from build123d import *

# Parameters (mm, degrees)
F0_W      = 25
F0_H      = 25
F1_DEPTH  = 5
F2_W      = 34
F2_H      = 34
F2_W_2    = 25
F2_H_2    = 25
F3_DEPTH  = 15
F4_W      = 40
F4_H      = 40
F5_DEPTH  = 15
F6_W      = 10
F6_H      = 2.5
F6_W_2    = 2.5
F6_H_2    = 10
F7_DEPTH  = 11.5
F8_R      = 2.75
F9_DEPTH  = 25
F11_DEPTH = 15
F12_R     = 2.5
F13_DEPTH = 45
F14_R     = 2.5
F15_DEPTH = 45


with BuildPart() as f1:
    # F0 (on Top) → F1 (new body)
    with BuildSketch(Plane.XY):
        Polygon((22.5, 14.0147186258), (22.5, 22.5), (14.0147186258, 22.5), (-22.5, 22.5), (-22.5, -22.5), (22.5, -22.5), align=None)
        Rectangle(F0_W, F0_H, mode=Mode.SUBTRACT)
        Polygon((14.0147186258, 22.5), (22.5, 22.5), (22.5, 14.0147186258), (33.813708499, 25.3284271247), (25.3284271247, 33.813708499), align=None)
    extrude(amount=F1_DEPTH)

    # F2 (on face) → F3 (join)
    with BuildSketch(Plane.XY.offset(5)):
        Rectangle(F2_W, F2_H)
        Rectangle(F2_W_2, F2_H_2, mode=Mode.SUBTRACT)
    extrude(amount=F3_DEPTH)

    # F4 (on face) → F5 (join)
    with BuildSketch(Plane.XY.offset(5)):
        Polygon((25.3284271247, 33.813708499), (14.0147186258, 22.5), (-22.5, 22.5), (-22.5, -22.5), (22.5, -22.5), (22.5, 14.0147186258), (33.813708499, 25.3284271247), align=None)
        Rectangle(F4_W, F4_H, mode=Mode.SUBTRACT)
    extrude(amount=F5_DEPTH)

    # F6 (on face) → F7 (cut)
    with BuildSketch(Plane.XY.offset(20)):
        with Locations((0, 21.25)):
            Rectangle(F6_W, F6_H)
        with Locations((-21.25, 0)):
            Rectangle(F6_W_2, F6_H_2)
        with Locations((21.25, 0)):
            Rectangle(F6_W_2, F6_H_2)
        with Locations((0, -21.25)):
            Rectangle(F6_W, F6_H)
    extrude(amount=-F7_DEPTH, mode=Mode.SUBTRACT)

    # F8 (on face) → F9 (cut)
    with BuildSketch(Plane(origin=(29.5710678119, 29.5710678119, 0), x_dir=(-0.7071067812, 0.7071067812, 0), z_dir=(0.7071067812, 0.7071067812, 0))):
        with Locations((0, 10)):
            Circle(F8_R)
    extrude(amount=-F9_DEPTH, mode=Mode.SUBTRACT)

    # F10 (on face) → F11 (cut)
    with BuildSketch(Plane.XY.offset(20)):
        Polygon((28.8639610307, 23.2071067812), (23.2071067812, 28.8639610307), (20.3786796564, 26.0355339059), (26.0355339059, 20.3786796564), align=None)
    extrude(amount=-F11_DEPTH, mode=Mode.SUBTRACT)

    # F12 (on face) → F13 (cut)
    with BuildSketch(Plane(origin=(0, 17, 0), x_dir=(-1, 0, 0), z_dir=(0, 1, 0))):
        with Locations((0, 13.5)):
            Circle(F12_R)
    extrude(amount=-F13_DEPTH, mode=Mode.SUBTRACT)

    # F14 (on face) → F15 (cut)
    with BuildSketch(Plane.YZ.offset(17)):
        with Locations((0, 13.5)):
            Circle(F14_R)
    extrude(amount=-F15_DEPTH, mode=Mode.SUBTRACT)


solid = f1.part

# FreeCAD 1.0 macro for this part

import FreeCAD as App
import Part
import Sketcher
from FreeCAD import Vector
Q = App.Units.Quantity

doc = App.newDocument("Part")
body = doc.addObject("PartDesign::Body", "Body")

# Sketch on XY plane
sketch1 = body.newObject("Sketcher::SketchObject", "Sketch")
sketch1.AttachmentSupport = (doc.getObject("XY_Plane"), [""])
sketch1.MapMode = "FlatFace"
sketch1.addGeometry(Part.LineSegment(Vector(14, 22, 0), Vector(-22, 22, 0)), False)
sketch1.addGeometry(Part.LineSegment(Vector(-22, 22, 0), Vector(-22, -22, 0)), False)
sketch1.addGeometry(Part.LineSegment(Vector(-22, -22, 0), Vector(22, -22, 0)), False)
sketch1.addGeometry(Part.LineSegment(Vector(22, -22, 0), Vector(22, 14, 0)), False)
sketch1.addGeometry(Part.LineSegment(Vector(22, 14, 0), Vector(34, 25, 0)), False)
sketch1.addGeometry(Part.LineSegment(Vector(34, 25, 0), Vector(25, 34, 0)), False)
sketch1.addGeometry(Part.LineSegment(Vector(25, 34, 0), Vector(14, 22, 0)), False)
sketch1.addGeometry(Part.LineSegment(Vector(12, -12, 0), Vector(-12, -12, 0)), False)
sketch1.addGeometry(Part.LineSegment(Vector(-12, -12, 0), Vector(-12, 12, 0)), False)
sketch1.addGeometry(Part.LineSegment(Vector(-12, 12, 0), Vector(12, 12, 0)), False)
sketch1.addGeometry(Part.LineSegment(Vector(12, 12, 0), Vector(12, -12, 0)), False)
sketch1.addConstraint(Sketcher.Constraint("Coincident", 0, 2, 1, 1))
sketch1.addConstraint(Sketcher.Constraint("Coincident", 1, 2, 2, 1))
sketch1.addConstraint(Sketcher.Constraint("Coincident", 2, 2, 3, 1))
sketch1.addConstraint(Sketcher.Constraint("Coincident", 3, 2, 4, 1))
sketch1.addConstraint(Sketcher.Constraint("Coincident", 4, 2, 5, 1))
sketch1.addConstraint(Sketcher.Constraint("Coincident", 5, 2, 6, 1))
sketch1.addConstraint(Sketcher.Constraint("Coincident", 6, 2, 0, 1))
sketch1.addConstraint(Sketcher.Constraint("Coincident", 7, 2, 8, 1))
sketch1.addConstraint(Sketcher.Constraint("Coincident", 8, 2, 9, 1))
sketch1.addConstraint(Sketcher.Constraint("Coincident", 9, 2, 10, 1))
sketch1.addConstraint(Sketcher.Constraint("Coincident", 10, 2, 7, 1))
sketch1.addConstraint(Sketcher.Constraint("Horizontal", 0))
sketch1.addConstraint(Sketcher.Constraint("Vertical", 1))
sketch1.addConstraint(Sketcher.Constraint("Horizontal", 2))
sketch1.addConstraint(Sketcher.Constraint("Vertical", 3))
sketch1.addConstraint(Sketcher.Constraint("Horizontal", 7))
sketch1.addConstraint(Sketcher.Constraint("Vertical", 8))
sketch1.addConstraint(Sketcher.Constraint("Horizontal", 9))
sketch1.addConstraint(Sketcher.Constraint("Vertical", 10))
sketch1.addConstraint(Sketcher.Constraint("Symmetric", 0, 2, 2, 2, -1, 1))
sketch1.addConstraint(Sketcher.Constraint("Symmetric", 7, 2, 9, 2, -1, 1))
sketch1.addConstraint(Sketcher.Constraint("Perpendicular", 4, 5))
sketch1.addConstraint(Sketcher.Constraint("Perpendicular", 5, 6))
sketch1.addConstraint(Sketcher.Constraint("Equal", 2, 1))
sketch1.addConstraint(Sketcher.Constraint("Equal", 0, 3))
sketch1.addConstraint(Sketcher.Constraint("Equal", 9, 8))
sketch1.addConstraint(Sketcher.Constraint("Equal", 4, 6))
sketch1.addConstraint(Sketcher.Constraint("DistanceX", 2, 1, 2, 2, Q("45 mm")))
sketch1.addConstraint(Sketcher.Constraint("DistanceX", 7, 2, 7, 1, Q("25 mm")))
sketch1.addConstraint(Sketcher.Constraint("Distance", 4, Q("16 mm")))
sketch1.addConstraint(Sketcher.Constraint("Distance", 5, Q("12 mm")))
pad1 = body.newObject("PartDesign::Pad", "Pad")
pad1.Profile = sketch1
pad1.Length = 5

# Sketch on XY plane
sketch2 = body.newObject("Sketcher::SketchObject", "Sketch001")
sketch2.AttachmentSupport = (doc.getObject("XY_Plane"), [""])
sketch2.MapMode = "FlatFace"
sketch2.AttachmentOffset = App.Placement(Vector(0, 0, 5), App.Rotation())
sketch2.addGeometry(Part.LineSegment(Vector(-17, 17, 0), Vector(-17, -17, 0)), False)
sketch2.addGeometry(Part.LineSegment(Vector(-17, -17, 0), Vector(17, -17, 0)), False)
sketch2.addGeometry(Part.LineSegment(Vector(17, -17, 0), Vector(17, 17, 0)), False)
sketch2.addGeometry(Part.LineSegment(Vector(17, 17, 0), Vector(-17, 17, 0)), False)
sketch2.addGeometry(Part.LineSegment(Vector(12, -12, 0), Vector(-12, -12, 0)), False)
sketch2.addGeometry(Part.LineSegment(Vector(-12, -12, 0), Vector(-12, 12, 0)), False)
sketch2.addGeometry(Part.LineSegment(Vector(-12, 12, 0), Vector(12, 12, 0)), False)
sketch2.addGeometry(Part.LineSegment(Vector(12, 12, 0), Vector(12, -12, 0)), False)
sketch2.addConstraint(Sketcher.Constraint("Coincident", 0, 2, 1, 1))
sketch2.addConstraint(Sketcher.Constraint("Coincident", 1, 2, 2, 1))
sketch2.addConstraint(Sketcher.Constraint("Coincident", 2, 2, 3, 1))
sketch2.addConstraint(Sketcher.Constraint("Coincident", 3, 2, 0, 1))
sketch2.addConstraint(Sketcher.Constraint("Coincident", 4, 2, 5, 1))
sketch2.addConstraint(Sketcher.Constraint("Coincident", 5, 2, 6, 1))
sketch2.addConstraint(Sketcher.Constraint("Coincident", 6, 2, 7, 1))
sketch2.addConstraint(Sketcher.Constraint("Coincident", 7, 2, 4, 1))
sketch2.addConstraint(Sketcher.Constraint("Vertical", 0))
sketch2.addConstraint(Sketcher.Constraint("Horizontal", 1))
sketch2.addConstraint(Sketcher.Constraint("Vertical", 2))
sketch2.addConstraint(Sketcher.Constraint("Horizontal", 3))
sketch2.addConstraint(Sketcher.Constraint("Horizontal", 4))
sketch2.addConstraint(Sketcher.Constraint("Vertical", 5))
sketch2.addConstraint(Sketcher.Constraint("Horizontal", 6))
sketch2.addConstraint(Sketcher.Constraint("Vertical", 7))
sketch2.addConstraint(Sketcher.Constraint("Symmetric", 0, 2, 2, 2, -1, 1))
sketch2.addConstraint(Sketcher.Constraint("Symmetric", 4, 2, 6, 2, -1, 1))
sketch2.addConstraint(Sketcher.Constraint("Equal", 3, 0))
sketch2.addConstraint(Sketcher.Constraint("Equal", 6, 5))
sketch2.addConstraint(Sketcher.Constraint("DistanceX", 1, 1, 1, 2, Q("34 mm")))
sketch2.addConstraint(Sketcher.Constraint("DistanceX", 4, 2, 4, 1, Q("25 mm")))
pad2 = body.newObject("PartDesign::Pad", "Pad001")
pad2.Profile = sketch2
pad2.Length = 15

# Sketch on XY plane
sketch3 = body.newObject("Sketcher::SketchObject", "Sketch002")
sketch3.AttachmentSupport = (doc.getObject("XY_Plane"), [""])
sketch3.MapMode = "FlatFace"
sketch3.AttachmentOffset = App.Placement(Vector(0, 0, 5), App.Rotation())
sketch3.addGeometry(Part.LineSegment(Vector(25, 34, 0), Vector(14, 22, 0)), False)
sketch3.addGeometry(Part.LineSegment(Vector(14, 22, 0), Vector(-22, 22, 0)), False)
sketch3.addGeometry(Part.LineSegment(Vector(-22, 22, 0), Vector(-22, -22, 0)), False)
sketch3.addGeometry(Part.LineSegment(Vector(-22, -22, 0), Vector(22, -22, 0)), False)
sketch3.addGeometry(Part.LineSegment(Vector(22, -22, 0), Vector(22, 14, 0)), False)
sketch3.addGeometry(Part.LineSegment(Vector(22, 14, 0), Vector(34, 25, 0)), False)
sketch3.addGeometry(Part.LineSegment(Vector(34, 25, 0), Vector(25, 34, 0)), False)
sketch3.addGeometry(Part.LineSegment(Vector(20, -20, 0), Vector(-20, -20, 0)), False)
sketch3.addGeometry(Part.LineSegment(Vector(-20, -20, 0), Vector(-20, 20, 0)), False)
sketch3.addGeometry(Part.LineSegment(Vector(-20, 20, 0), Vector(20, 20, 0)), False)
sketch3.addGeometry(Part.LineSegment(Vector(20, 20, 0), Vector(20, -20, 0)), False)
sketch3.addConstraint(Sketcher.Constraint("Coincident", 0, 2, 1, 1))
sketch3.addConstraint(Sketcher.Constraint("Coincident", 1, 2, 2, 1))
sketch3.addConstraint(Sketcher.Constraint("Coincident", 2, 2, 3, 1))
sketch3.addConstraint(Sketcher.Constraint("Coincident", 3, 2, 4, 1))
sketch3.addConstraint(Sketcher.Constraint("Coincident", 4, 2, 5, 1))
sketch3.addConstraint(Sketcher.Constraint("Coincident", 5, 2, 6, 1))
sketch3.addConstraint(Sketcher.Constraint("Coincident", 6, 2, 0, 1))
sketch3.addConstraint(Sketcher.Constraint("Coincident", 7, 2, 8, 1))
sketch3.addConstraint(Sketcher.Constraint("Coincident", 8, 2, 9, 1))
sketch3.addConstraint(Sketcher.Constraint("Coincident", 9, 2, 10, 1))
sketch3.addConstraint(Sketcher.Constraint("Coincident", 10, 2, 7, 1))
sketch3.addConstraint(Sketcher.Constraint("Horizontal", 1))
sketch3.addConstraint(Sketcher.Constraint("Vertical", 2))
sketch3.addConstraint(Sketcher.Constraint("Horizontal", 3))
sketch3.addConstraint(Sketcher.Constraint("Vertical", 4))
sketch3.addConstraint(Sketcher.Constraint("Horizontal", 7))
sketch3.addConstraint(Sketcher.Constraint("Vertical", 8))
sketch3.addConstraint(Sketcher.Constraint("Horizontal", 9))
sketch3.addConstraint(Sketcher.Constraint("Vertical", 10))
sketch3.addConstraint(Sketcher.Constraint("Symmetric", 1, 2, 3, 2, -1, 1))
sketch3.addConstraint(Sketcher.Constraint("Symmetric", 7, 2, 9, 2, -1, 1))
sketch3.addConstraint(Sketcher.Constraint("Parallel", 0, 5))
sketch3.addConstraint(Sketcher.Constraint("Perpendicular", 5, 6))
sketch3.addConstraint(Sketcher.Constraint("Equal", 3, 2))
sketch3.addConstraint(Sketcher.Constraint("Equal", 1, 4))
sketch3.addConstraint(Sketcher.Constraint("Equal", 9, 8))
sketch3.addConstraint(Sketcher.Constraint("Equal", 0, 5))
sketch3.addConstraint(Sketcher.Constraint("DistanceX", 3, 1, 3, 2, Q("45 mm")))
sketch3.addConstraint(Sketcher.Constraint("DistanceX", 7, 2, 7, 1, Q("40 mm")))
sketch3.addConstraint(Sketcher.Constraint("Distance", 0, Q("16 mm")))
sketch3.addConstraint(Sketcher.Constraint("Distance", 6, Q("12 mm")))
pad3 = body.newObject("PartDesign::Pad", "Pad002")
pad3.Profile = sketch3
pad3.Length = 15

# Sketch on XY plane
sketch4 = body.newObject("Sketcher::SketchObject", "Sketch003")
sketch4.AttachmentSupport = (doc.getObject("XY_Plane"), [""])
sketch4.MapMode = "FlatFace"
sketch4.AttachmentOffset = App.Placement(Vector(0, 0, 20), App.Rotation())
sketch4.addGeometry(Part.LineSegment(Vector(-5, 22.5, 0), Vector(-5, 20, 0)), False)
sketch4.addGeometry(Part.LineSegment(Vector(-5, 20, 0), Vector(5, 20, 0)), False)
sketch4.addGeometry(Part.LineSegment(Vector(5, 20, 0), Vector(5, 22.5, 0)), False)
sketch4.addGeometry(Part.LineSegment(Vector(5, 22.5, 0), Vector(-5, 22.5, 0)), False)
sketch4.addGeometry(Part.LineSegment(Vector(-22.5, 5, 0), Vector(-22.5, -5, 0)), False)
sketch4.addGeometry(Part.LineSegment(Vector(-22.5, -5, 0), Vector(-20, -5, 0)), False)
sketch4.addGeometry(Part.LineSegment(Vector(-20, -5, 0), Vector(-20, 5, 0)), False)
sketch4.addGeometry(Part.LineSegment(Vector(-20, 5, 0), Vector(-22.5, 5, 0)), False)
sketch4.addGeometry(Part.LineSegment(Vector(20, 5, 0), Vector(20, -5, 0)), False)
sketch4.addGeometry(Part.LineSegment(Vector(20, -5, 0), Vector(22.5, -5, 0)), False)
sketch4.addGeometry(Part.LineSegment(Vector(22.5, -5, 0), Vector(22.5, 5, 0)), False)
sketch4.addGeometry(Part.LineSegment(Vector(22.5, 5, 0), Vector(20, 5, 0)), False)
sketch4.addGeometry(Part.LineSegment(Vector(-5, -20, 0), Vector(-5, -22.5, 0)), False)
sketch4.addGeometry(Part.LineSegment(Vector(-5, -22.5, 0), Vector(5, -22.5, 0)), False)
sketch4.addGeometry(Part.LineSegment(Vector(5, -22.5, 0), Vector(5, -20, 0)), False)
sketch4.addGeometry(Part.LineSegment(Vector(5, -20, 0), Vector(-5, -20, 0)), False)
sketch4.addConstraint(Sketcher.Constraint("Coincident", 0, 2, 1, 1))
sketch4.addConstraint(Sketcher.Constraint("Coincident", 1, 2, 2, 1))
sketch4.addConstraint(Sketcher.Constraint("Coincident", 2, 2, 3, 1))
sketch4.addConstraint(Sketcher.Constraint("Coincident", 3, 2, 0, 1))
sketch4.addConstraint(Sketcher.Constraint("Coincident", 4, 2, 5, 1))
sketch4.addConstraint(Sketcher.Constraint("Coincident", 5, 2, 6, 1))
sketch4.addConstraint(Sketcher.Constraint("Coincident", 6, 2, 7, 1))
sketch4.addConstraint(Sketcher.Constraint("Coincident", 7, 2, 4, 1))
sketch4.addConstraint(Sketcher.Constraint("Coincident", 8, 2, 9, 1))
sketch4.addConstraint(Sketcher.Constraint("Coincident", 9, 2, 10, 1))
sketch4.addConstraint(Sketcher.Constraint("Coincident", 10, 2, 11, 1))
sketch4.addConstraint(Sketcher.Constraint("Coincident", 11, 2, 8, 1))
sketch4.addConstraint(Sketcher.Constraint("Coincident", 12, 2, 13, 1))
sketch4.addConstraint(Sketcher.Constraint("Coincident", 13, 2, 14, 1))
sketch4.addConstraint(Sketcher.Constraint("Coincident", 14, 2, 15, 1))
sketch4.addConstraint(Sketcher.Constraint("Coincident", 15, 2, 12, 1))
sketch4.addConstraint(Sketcher.Constraint("Vertical", 0))
sketch4.addConstraint(Sketcher.Constraint("Horizontal", 1))
sketch4.addConstraint(Sketcher.Constraint("Vertical", 2))
sketch4.addConstraint(Sketcher.Constraint("Horizontal", 3))
sketch4.addConstraint(Sketcher.Constraint("Vertical", 4))
sketch4.addConstraint(Sketcher.Constraint("Horizontal", 5))
sketch4.addConstraint(Sketcher.Constraint("Vertical", 6))
sketch4.addConstraint(Sketcher.Constraint("Horizontal", 7))
sketch4.addConstraint(Sketcher.Constraint("Vertical", 8))
sketch4.addConstraint(Sketcher.Constraint("Horizontal", 9))
sketch4.addConstraint(Sketcher.Constraint("Vertical", 10))
sketch4.addConstraint(Sketcher.Constraint("Horizontal", 11))
sketch4.addConstraint(Sketcher.Constraint("Vertical", 12))
sketch4.addConstraint(Sketcher.Constraint("Horizontal", 13))
sketch4.addConstraint(Sketcher.Constraint("Vertical", 14))
sketch4.addConstraint(Sketcher.Constraint("Horizontal", 15))
sketch4.addConstraint(Sketcher.Constraint("Symmetric", 6, 2, 8, 2, -1, 1))
sketch4.addConstraint(Sketcher.Constraint("Symmetric", 4, 2, 10, 2, -1, 1))
sketch4.addConstraint(Sketcher.Constraint("Symmetric", 2, 2, 12, 2, -1, 1))
sketch4.addConstraint(Sketcher.Constraint("Symmetric", 0, 2, 14, 2, -1, 1))
sketch4.addConstraint(Sketcher.Constraint("Horizontal", 5, 2, 8, 2))
sketch4.addConstraint(Sketcher.Constraint("Vertical", 3, 2, 12, 2))
sketch4.addConstraint(Sketcher.Constraint("Equal", 11, 0))
sketch4.addConstraint(Sketcher.Constraint("Equal", 15, 4))
sketch4.addConstraint(Sketcher.Constraint("DistanceX", 1, 1, 1, 2, Q("10 mm")))
sketch4.addConstraint(Sketcher.Constraint("DistanceX", 5, 1, 5, 2, Q("2.5 mm")))
sketch4.addConstraint(Sketcher.Constraint("DistanceY", -1, 1, 0, 2, Q("20 mm")))
sketch4.addConstraint(Sketcher.Constraint("DistanceX", 5, 2, -1, 1, Q("20 mm")))
pocket1 = body.newObject("PartDesign::Pocket", "Pocket")
pocket1.Profile = sketch4
pocket1.Length = 11.5

# Sketch on an angled plane
sketch5 = body.newObject("Sketcher::SketchObject", "Sketch004")
sketch5.Placement = App.Placement(Vector(29.571068, 29.571068, 0), App.Rotation(Vector(-0.707106781, 0.707106781, 0), Vector(0, 0, 0.999999999), Vector(0.707106781, 0.707106781, 0), "ZXY"))
sketch5.addGeometry(Part.Circle(Vector(0, 10, 0), Vector(0, 0, 1), 2.8), False)
sketch5.addConstraint(Sketcher.Constraint("PointOnObject", 0, 3, -2))
sketch5.addConstraint(Sketcher.Constraint("Diameter", 0, Q("5.5 mm")))
sketch5.addConstraint(Sketcher.Constraint("DistanceY", -1, 1, 0, 3, Q("10 mm")))
pocket2 = body.newObject("PartDesign::Pocket", "Pocket001")
pocket2.Profile = sketch5
pocket2.Length = 25

# Sketch on XY plane
sketch6 = body.newObject("Sketcher::SketchObject", "Sketch005")
sketch6.AttachmentSupport = (doc.getObject("XY_Plane"), [""])
sketch6.MapMode = "FlatFace"
sketch6.AttachmentOffset = App.Placement(Vector(0, 0, 20), App.Rotation())
sketch6.addGeometry(Part.LineSegment(Vector(28.9, 23.2, 0), Vector(23.2, 28.9, 0)), False)
sketch6.addGeometry(Part.LineSegment(Vector(23.2, 28.9, 0), Vector(20.4, 26, 0)), False)
sketch6.addGeometry(Part.LineSegment(Vector(20.4, 26, 0), Vector(26, 20.4, 0)), False)
sketch6.addGeometry(Part.LineSegment(Vector(26, 20.4, 0), Vector(28.9, 23.2, 0)), False)
sketch6.addConstraint(Sketcher.Constraint("Coincident", 0, 2, 1, 1))
sketch6.addConstraint(Sketcher.Constraint("Coincident", 1, 2, 2, 1))
sketch6.addConstraint(Sketcher.Constraint("Coincident", 2, 2, 3, 1))
sketch6.addConstraint(Sketcher.Constraint("Coincident", 3, 2, 0, 1))
sketch6.addConstraint(Sketcher.Constraint("Perpendicular", 0, 1))
sketch6.addConstraint(Sketcher.Constraint("Perpendicular", 1, 2))
sketch6.addConstraint(Sketcher.Constraint("Perpendicular", 2, 3))
sketch6.addConstraint(Sketcher.Constraint("Angle", 0, Q("135 deg")))
sketch6.addConstraint(Sketcher.Constraint("Distance", 0, Q("8 mm")))
sketch6.addConstraint(Sketcher.Constraint("Distance", 1, Q("4 mm")))
sketch6.addConstraint(Sketcher.Constraint("DistanceY", -1, 1, 0, 2, Q("28.863961 mm")))
sketch6.addConstraint(Sketcher.Constraint("DistanceX", -1, 1, 1, 2, Q("20.37868 mm")))
pocket3 = body.newObject("PartDesign::Pocket", "Pocket002")
pocket3.Profile = sketch6
pocket3.Length = 15

# Sketch on XZ plane
sketch7 = body.newObject("Sketcher::SketchObject", "Sketch006")
sketch7.AttachmentSupport = (doc.getObject("XZ_Plane"), [""])
sketch7.MapMode = "FlatFace"
sketch7.AttachmentOffset = App.Placement(Vector(0, 0, -17), App.Rotation())
sketch7.addGeometry(Part.Circle(Vector(0, 13.5, 0), Vector(0, 0, 1), 2.5), False)
sketch7.addConstraint(Sketcher.Constraint("PointOnObject", 0, 3, -2))
sketch7.addConstraint(Sketcher.Constraint("Diameter", 0, Q("5 mm")))
sketch7.addConstraint(Sketcher.Constraint("DistanceY", -1, 1, 0, 3, Q("13.5 mm")))
pocket4 = body.newObject("PartDesign::Pocket", "Pocket003")
pocket4.Profile = sketch7
pocket4.Length = 45
pocket4.Reversed = True

# Sketch on YZ plane
sketch8 = body.newObject("Sketcher::SketchObject", "Sketch007")
sketch8.AttachmentSupport = (doc.getObject("YZ_Plane"), [""])
sketch8.MapMode = "FlatFace"
sketch8.AttachmentOffset = App.Placement(Vector(0, 0, 17), App.Rotation())
sketch8.addGeometry(Part.Circle(Vector(0, 13.5, 0), Vector(0, 0, 1), 2.5), False)
sketch8.addConstraint(Sketcher.Constraint("PointOnObject", 0, 3, -2))
sketch8.addConstraint(Sketcher.Constraint("Diameter", 0, Q("5 mm")))
sketch8.addConstraint(Sketcher.Constraint("DistanceY", -1, 1, 0, 3, Q("13.5 mm")))
pocket5 = body.newObject("PartDesign::Pocket", "Pocket004")
pocket5.Profile = sketch8
pocket5.Length = 45

doc.recompute()
